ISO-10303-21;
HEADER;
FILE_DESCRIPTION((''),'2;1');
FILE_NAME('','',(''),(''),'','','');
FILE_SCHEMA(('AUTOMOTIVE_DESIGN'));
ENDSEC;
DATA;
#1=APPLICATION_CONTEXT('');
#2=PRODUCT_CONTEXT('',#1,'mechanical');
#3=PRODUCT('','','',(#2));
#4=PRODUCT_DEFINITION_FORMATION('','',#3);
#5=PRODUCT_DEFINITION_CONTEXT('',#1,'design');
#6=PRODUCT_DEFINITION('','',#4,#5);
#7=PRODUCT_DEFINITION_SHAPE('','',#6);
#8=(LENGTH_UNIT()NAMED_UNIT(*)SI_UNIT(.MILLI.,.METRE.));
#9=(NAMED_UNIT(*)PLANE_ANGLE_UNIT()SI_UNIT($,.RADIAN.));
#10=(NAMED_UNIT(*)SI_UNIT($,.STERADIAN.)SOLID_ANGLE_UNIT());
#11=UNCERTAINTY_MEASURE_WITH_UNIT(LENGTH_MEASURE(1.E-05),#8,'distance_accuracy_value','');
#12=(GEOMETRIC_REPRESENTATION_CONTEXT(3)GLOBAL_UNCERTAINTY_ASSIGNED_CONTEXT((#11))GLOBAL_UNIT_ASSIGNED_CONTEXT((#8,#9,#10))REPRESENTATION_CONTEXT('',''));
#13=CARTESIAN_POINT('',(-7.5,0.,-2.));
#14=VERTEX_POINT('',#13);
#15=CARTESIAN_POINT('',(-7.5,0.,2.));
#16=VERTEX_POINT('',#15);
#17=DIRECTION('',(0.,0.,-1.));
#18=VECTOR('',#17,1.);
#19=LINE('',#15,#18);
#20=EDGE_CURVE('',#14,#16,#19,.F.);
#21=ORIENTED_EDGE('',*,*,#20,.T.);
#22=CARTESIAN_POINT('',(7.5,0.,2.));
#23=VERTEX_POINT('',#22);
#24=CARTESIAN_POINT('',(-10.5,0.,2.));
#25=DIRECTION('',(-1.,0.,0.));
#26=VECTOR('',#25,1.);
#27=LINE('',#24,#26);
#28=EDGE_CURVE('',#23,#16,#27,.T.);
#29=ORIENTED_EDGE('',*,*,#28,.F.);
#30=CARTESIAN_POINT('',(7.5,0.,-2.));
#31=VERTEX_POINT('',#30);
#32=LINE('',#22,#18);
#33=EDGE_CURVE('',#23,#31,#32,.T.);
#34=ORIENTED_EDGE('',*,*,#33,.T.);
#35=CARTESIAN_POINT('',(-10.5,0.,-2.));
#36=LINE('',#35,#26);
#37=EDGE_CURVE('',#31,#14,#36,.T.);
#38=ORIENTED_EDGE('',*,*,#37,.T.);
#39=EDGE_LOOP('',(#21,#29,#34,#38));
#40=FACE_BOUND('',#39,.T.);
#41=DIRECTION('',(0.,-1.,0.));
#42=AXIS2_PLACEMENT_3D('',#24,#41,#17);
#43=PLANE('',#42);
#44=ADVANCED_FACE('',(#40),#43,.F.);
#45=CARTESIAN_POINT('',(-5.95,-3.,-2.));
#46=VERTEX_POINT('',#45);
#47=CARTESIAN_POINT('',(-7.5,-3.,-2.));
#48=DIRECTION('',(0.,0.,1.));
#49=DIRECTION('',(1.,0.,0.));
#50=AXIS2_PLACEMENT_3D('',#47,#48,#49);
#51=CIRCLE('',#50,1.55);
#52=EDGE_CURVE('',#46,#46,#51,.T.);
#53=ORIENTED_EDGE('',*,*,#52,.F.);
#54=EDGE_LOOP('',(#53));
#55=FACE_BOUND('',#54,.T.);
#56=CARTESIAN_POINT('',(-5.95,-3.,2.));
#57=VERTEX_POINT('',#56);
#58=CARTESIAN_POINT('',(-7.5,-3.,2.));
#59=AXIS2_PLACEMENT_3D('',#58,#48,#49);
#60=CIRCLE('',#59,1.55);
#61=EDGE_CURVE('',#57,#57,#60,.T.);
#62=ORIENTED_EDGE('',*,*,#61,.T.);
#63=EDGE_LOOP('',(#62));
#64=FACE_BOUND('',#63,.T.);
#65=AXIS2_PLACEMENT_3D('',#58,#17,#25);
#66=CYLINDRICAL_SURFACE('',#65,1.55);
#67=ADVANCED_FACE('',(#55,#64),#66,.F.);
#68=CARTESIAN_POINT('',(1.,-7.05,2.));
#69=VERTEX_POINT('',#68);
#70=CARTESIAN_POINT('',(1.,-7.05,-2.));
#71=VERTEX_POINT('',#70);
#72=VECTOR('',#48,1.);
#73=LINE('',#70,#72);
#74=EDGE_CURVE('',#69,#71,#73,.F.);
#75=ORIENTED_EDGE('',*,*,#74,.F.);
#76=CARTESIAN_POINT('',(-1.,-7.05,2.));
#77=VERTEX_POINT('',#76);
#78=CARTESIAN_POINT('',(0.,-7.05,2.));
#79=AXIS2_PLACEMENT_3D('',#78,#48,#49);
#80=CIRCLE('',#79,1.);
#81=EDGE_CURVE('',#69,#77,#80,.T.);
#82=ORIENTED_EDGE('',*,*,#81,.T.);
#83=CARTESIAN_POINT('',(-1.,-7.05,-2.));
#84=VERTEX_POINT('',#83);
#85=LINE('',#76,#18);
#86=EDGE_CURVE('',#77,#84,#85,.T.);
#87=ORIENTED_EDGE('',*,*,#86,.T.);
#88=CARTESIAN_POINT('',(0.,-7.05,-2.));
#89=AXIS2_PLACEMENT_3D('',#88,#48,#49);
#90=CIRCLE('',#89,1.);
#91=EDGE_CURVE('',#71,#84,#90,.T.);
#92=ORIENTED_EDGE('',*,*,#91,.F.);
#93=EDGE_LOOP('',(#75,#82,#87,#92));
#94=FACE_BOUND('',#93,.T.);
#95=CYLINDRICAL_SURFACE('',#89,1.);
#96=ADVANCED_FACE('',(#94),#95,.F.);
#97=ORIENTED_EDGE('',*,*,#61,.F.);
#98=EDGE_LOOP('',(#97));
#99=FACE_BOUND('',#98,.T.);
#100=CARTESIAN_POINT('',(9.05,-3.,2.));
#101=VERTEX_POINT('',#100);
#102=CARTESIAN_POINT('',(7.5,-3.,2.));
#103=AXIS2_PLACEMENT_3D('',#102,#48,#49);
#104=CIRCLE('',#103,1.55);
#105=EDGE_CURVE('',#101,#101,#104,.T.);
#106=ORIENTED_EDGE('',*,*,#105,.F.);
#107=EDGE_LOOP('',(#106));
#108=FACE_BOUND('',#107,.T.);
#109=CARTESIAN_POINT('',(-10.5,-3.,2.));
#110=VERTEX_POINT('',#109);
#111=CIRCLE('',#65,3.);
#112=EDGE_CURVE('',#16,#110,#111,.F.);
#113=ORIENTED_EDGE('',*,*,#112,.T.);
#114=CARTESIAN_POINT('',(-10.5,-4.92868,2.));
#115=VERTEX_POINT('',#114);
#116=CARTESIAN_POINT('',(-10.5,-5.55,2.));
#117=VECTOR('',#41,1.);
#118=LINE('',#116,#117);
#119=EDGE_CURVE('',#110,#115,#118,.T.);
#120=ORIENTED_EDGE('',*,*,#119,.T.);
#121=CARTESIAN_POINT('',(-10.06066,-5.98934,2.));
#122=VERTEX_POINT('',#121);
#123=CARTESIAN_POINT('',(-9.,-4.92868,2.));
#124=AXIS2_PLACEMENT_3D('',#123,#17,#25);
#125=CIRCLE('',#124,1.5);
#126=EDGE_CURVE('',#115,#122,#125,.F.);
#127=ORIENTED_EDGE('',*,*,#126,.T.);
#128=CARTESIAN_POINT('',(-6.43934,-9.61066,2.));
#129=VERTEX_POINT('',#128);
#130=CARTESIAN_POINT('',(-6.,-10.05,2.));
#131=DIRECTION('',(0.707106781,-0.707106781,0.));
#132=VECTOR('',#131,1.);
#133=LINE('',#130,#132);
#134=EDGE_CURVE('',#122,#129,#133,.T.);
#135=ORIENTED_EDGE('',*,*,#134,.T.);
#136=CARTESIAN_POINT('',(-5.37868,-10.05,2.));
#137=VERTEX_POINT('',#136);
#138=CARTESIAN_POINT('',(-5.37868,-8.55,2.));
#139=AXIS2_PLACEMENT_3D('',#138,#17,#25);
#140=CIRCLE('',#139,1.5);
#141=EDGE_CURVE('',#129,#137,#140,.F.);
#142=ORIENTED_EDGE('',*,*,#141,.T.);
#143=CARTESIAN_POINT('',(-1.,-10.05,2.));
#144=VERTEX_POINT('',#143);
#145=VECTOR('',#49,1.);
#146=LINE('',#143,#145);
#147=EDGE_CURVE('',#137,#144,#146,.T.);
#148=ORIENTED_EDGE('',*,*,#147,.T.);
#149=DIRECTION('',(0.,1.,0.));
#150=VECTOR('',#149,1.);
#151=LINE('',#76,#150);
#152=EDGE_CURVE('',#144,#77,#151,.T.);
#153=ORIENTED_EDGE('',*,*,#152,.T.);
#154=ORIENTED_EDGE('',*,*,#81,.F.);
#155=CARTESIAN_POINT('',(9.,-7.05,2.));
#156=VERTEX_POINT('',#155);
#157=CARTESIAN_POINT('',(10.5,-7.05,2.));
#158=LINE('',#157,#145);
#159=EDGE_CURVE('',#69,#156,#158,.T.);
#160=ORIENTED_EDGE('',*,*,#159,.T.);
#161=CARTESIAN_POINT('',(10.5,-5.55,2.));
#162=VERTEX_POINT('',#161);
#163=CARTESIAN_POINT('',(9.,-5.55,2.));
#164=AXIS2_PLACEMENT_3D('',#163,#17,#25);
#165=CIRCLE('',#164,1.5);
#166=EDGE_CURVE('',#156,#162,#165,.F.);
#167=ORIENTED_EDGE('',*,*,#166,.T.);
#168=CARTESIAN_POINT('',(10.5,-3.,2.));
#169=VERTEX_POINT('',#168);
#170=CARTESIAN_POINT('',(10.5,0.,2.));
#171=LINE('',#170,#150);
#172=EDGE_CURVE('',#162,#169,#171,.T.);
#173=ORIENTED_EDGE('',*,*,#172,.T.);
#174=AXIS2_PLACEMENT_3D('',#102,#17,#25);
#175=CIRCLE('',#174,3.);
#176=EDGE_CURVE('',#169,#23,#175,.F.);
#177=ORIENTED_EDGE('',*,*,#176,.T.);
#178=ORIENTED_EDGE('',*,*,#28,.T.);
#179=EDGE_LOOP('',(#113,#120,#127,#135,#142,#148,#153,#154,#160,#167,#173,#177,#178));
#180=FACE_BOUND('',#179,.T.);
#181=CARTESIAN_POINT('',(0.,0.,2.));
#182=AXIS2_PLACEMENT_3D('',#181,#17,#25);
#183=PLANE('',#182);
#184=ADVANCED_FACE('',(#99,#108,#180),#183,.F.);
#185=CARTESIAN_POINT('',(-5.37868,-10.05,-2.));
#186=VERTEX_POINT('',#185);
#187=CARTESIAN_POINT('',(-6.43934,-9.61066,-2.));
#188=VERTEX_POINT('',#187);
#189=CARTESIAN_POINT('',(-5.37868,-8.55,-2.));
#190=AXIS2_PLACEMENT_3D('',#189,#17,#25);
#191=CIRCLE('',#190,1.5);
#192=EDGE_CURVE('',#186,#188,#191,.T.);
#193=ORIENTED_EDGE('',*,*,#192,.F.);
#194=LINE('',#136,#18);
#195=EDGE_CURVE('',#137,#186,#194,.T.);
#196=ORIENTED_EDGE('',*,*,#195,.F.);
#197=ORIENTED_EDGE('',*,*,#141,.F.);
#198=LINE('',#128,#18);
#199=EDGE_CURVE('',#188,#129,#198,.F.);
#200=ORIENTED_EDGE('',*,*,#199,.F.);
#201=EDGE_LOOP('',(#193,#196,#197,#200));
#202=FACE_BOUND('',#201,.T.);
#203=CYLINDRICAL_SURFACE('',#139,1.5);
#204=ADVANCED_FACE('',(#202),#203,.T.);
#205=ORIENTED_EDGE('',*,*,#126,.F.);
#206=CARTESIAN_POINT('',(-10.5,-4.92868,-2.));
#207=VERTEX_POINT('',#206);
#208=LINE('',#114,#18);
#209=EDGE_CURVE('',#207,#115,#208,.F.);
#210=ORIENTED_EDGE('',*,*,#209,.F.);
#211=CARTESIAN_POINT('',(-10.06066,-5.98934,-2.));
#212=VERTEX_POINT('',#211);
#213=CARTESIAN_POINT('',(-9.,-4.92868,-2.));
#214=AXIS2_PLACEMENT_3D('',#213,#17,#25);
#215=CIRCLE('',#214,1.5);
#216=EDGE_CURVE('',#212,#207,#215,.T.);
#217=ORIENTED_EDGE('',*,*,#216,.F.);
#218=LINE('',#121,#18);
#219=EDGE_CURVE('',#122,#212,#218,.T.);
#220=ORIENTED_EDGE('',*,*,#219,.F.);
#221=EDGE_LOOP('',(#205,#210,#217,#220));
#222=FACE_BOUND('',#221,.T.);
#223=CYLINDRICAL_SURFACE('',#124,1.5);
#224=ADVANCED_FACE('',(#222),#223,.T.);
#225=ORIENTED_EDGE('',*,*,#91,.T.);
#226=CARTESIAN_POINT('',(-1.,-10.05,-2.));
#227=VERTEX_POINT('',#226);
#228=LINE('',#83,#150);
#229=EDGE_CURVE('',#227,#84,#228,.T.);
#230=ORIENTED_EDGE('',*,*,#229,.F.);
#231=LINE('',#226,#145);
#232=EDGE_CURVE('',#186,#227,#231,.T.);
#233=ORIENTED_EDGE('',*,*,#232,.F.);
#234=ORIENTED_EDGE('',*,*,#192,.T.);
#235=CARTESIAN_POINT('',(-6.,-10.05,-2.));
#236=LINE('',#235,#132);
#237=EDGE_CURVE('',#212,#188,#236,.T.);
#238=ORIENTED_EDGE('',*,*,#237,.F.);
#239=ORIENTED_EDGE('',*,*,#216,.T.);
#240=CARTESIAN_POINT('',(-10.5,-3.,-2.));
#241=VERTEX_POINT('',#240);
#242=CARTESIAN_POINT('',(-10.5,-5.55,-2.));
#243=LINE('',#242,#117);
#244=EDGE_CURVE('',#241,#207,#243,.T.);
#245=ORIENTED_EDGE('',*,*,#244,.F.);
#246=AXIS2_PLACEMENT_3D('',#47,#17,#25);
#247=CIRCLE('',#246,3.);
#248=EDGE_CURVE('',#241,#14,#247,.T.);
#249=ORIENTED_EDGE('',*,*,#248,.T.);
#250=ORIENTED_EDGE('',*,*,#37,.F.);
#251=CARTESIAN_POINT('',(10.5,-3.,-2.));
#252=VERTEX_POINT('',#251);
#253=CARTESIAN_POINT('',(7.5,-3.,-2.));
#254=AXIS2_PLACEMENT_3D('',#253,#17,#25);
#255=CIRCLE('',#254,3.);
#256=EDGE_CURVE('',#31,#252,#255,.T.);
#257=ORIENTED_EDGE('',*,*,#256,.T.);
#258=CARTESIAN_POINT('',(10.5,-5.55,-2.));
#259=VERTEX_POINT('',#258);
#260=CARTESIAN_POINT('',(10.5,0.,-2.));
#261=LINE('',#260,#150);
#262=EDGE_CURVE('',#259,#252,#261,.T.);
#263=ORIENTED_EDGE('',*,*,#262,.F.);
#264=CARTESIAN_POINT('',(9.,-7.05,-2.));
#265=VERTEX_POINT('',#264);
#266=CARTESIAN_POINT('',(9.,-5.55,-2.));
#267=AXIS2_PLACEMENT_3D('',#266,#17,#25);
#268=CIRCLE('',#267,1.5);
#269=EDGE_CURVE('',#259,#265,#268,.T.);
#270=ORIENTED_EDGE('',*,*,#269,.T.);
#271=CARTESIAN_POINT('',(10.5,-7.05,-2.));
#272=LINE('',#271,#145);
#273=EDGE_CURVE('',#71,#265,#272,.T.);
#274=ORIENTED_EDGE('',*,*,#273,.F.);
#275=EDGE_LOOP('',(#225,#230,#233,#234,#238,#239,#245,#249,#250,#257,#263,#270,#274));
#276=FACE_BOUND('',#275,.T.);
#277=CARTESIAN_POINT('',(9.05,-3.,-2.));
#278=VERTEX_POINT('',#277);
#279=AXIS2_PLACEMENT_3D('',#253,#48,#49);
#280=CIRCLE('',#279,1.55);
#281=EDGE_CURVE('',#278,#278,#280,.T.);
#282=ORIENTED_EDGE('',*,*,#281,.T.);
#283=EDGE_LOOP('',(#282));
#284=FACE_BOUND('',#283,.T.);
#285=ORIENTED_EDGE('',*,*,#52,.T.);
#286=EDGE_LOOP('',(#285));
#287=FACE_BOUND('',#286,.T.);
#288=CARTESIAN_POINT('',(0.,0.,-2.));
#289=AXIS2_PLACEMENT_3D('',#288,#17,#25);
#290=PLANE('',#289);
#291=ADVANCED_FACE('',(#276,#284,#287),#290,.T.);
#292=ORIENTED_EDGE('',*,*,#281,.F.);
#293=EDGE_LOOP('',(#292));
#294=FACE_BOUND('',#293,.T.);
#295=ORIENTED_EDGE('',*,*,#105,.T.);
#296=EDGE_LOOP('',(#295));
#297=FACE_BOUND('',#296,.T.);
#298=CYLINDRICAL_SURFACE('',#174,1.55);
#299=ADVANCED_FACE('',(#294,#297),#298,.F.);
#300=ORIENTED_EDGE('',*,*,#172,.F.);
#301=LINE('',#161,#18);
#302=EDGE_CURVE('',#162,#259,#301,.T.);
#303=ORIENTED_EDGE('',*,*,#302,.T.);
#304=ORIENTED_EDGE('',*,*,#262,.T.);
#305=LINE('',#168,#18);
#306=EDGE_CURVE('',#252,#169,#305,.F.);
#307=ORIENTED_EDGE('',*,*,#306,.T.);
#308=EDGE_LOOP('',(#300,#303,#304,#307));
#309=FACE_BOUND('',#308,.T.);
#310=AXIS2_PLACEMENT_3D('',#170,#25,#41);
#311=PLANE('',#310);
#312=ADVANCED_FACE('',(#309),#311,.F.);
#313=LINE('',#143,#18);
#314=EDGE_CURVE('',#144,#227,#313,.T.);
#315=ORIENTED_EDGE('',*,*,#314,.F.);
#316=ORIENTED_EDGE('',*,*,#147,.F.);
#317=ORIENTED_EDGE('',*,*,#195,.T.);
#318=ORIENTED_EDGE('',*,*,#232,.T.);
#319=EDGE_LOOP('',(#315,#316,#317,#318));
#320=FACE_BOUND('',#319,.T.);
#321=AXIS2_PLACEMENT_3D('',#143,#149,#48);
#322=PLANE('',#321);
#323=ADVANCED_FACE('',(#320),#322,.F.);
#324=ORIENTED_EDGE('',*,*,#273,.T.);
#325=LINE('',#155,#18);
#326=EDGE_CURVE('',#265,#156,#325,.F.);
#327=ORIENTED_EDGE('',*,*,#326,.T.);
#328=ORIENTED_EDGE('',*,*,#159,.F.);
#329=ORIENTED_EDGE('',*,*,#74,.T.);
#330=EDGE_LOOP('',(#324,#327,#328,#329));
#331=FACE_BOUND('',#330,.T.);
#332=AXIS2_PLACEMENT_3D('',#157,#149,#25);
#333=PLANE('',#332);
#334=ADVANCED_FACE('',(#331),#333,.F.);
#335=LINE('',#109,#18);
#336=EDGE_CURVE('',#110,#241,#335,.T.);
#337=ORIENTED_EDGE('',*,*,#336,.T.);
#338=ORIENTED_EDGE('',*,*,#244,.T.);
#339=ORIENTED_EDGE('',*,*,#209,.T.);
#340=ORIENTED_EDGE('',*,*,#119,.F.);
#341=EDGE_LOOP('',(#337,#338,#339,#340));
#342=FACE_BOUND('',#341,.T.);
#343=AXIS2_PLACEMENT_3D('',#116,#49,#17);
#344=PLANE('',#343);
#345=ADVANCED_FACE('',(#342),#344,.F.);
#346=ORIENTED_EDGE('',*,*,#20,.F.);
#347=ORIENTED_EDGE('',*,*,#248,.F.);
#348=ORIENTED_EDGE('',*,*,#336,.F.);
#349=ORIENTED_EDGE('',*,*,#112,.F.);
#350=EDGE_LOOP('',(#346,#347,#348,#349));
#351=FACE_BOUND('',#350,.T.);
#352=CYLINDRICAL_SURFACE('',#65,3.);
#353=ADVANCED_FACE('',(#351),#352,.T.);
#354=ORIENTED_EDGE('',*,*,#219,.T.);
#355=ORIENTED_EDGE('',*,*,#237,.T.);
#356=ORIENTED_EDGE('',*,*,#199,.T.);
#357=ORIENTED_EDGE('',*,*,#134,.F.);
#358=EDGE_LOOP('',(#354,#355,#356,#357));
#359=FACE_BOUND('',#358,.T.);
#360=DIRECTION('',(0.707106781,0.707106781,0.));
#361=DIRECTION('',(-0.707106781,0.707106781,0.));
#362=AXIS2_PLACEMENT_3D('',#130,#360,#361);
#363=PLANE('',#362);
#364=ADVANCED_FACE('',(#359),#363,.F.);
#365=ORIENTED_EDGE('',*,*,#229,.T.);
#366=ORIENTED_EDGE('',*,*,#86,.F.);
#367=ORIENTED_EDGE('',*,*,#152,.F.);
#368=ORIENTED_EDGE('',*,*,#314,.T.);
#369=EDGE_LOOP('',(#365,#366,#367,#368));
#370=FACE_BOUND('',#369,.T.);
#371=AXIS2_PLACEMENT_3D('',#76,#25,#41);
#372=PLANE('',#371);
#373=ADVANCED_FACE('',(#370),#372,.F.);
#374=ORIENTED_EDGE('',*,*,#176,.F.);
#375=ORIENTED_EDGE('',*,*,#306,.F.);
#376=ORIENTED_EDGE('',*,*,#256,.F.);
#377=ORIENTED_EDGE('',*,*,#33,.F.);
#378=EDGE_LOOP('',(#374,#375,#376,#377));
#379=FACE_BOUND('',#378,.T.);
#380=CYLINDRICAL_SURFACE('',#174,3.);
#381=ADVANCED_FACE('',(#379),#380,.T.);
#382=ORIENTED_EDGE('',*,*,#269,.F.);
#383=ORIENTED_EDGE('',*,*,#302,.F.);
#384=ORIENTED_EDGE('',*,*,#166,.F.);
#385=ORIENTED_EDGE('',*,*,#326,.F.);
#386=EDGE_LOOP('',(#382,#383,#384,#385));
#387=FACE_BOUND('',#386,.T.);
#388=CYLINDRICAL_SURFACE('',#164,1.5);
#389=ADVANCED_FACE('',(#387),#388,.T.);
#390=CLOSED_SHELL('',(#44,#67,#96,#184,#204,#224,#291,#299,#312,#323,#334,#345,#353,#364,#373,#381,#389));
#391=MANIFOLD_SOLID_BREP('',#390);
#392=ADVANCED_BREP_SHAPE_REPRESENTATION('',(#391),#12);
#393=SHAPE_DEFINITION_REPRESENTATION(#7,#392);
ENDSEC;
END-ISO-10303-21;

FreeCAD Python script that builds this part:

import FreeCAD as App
import Part
import Sketcher
Q = App.Units.Quantity


def edges_at(feature, points):
    """Names of the edges that pass closest to the given points."""
    edges = feature.Shape.Edges
    near = lambda p: min(range(len(edges)), key=lambda i: edges[i].distToShape(Part.Vertex(*p))[0])
    return sorted({f"Edge{near(p) + 1}" for p in points})

doc = App.newDocument("Part")
body = doc.addObject("PartDesign::Body", "Body")

# Sketch on XY plane
sketch1 = doc.addObject("Sketcher::SketchObject", "Sketch")
body.addObject(sketch1)
sketch1.AttachmentSupport = (doc.XY_Plane, [""])
sketch1.MapMode = "FlatFace"
sketch1.addGeometry(Part.LineSegment(App.Vector(10.5, 0, 0), App.Vector(-10.5, 0, 0)), False)
sketch1.addGeometry(Part.LineSegment(App.Vector(-10.5, 0, 0), App.Vector(-10.5, -5.5, 0)), False)
sketch1.addGeometry(Part.LineSegment(App.Vector(-10.5, -5.5, 0), App.Vector(-6, -10.1, 0)), False)
sketch1.addGeometry(Part.LineSegment(App.Vector(-6, -10.1, 0), App.Vector(-1, -10.1, 0)), False)
sketch1.addGeometry(Part.LineSegment(App.Vector(-1, -10.1, 0), App.Vector(-1, -7, 0)), False)
sketch1.addGeometry(Part.LineSegment(App.Vector(-1, -7, 0), App.Vector(10.5, -7, 0)), False)
sketch1.addGeometry(Part.LineSegment(App.Vector(10.5, -7, 0), App.Vector(10.5, 0, 0)), False)
sketch1.addGeometry(Part.Circle(App.Vector(7.5, -3, 0), App.Vector(0, 0, 1), 1.6), False)
sketch1.addGeometry(Part.Circle(App.Vector(-7.5, -3, 0), App.Vector(0, 0, 1), 1.6), False)
sketch1.addConstraint(Sketcher.Constraint("Coincident", 0, 2, 1, 1))
sketch1.addConstraint(Sketcher.Constraint("Coincident", 1, 2, 2, 1))
sketch1.addConstraint(Sketcher.Constraint("Coincident", 2, 2, 3, 1))
sketch1.addConstraint(Sketcher.Constraint("Coincident", 3, 2, 4, 1))
sketch1.addConstraint(Sketcher.Constraint("Coincident", 4, 2, 5, 1))
sketch1.addConstraint(Sketcher.Constraint("Coincident", 5, 2, 6, 1))
sketch1.addConstraint(Sketcher.Constraint("Coincident", 6, 2, 0, 1))
sketch1.addConstraint(Sketcher.Constraint("Horizontal", 0))
sketch1.addConstraint(Sketcher.Constraint("Vertical", 1))
sketch1.addConstraint(Sketcher.Constraint("Horizontal", 3))
sketch1.addConstraint(Sketcher.Constraint("Vertical", 4))
sketch1.addConstraint(Sketcher.Constraint("Horizontal", 5))
sketch1.addConstraint(Sketcher.Constraint("Vertical", 6))
sketch1.addConstraint(Sketcher.Constraint("Equal", 7, 8))
sketch1.addConstraint(Sketcher.Constraint("Symmetric", 0, 2, 6, 2, -1, 1))
sketch1.addConstraint(Sketcher.Constraint("Symmetric", 7, 3, 8, 3, -2))
sketch1.addConstraint(Sketcher.Constraint("Diameter", 7, Q("3.1 mm")))
sketch1.addConstraint(Sketcher.Constraint("DistanceX", 0, 2, 0, 1, Q("21 mm")))
sketch1.addConstraint(Sketcher.Constraint("DistanceX", 3, 1, 3, 2, Q("5 mm")))
sketch1.addConstraint(Sketcher.Constraint("DistanceY", 4, 1, 4, 2, Q("3 mm")))
sketch1.addConstraint(Sketcher.Constraint("Angle", 2, Q("-45 deg")))
sketch1.addConstraint(Sketcher.Constraint("DistanceX", 5, 1, 5, 2, Q("11.5 mm")))
sketch1.addConstraint(Sketcher.Constraint("DistanceY", 7, 3, -1, 1, Q("3 mm")))
sketch1.addConstraint(Sketcher.Constraint("DistanceX", 8, 3, 7, 3, Q("15 mm")))
sketch1.addConstraint(Sketcher.Constraint("DistanceY", 1, 2, 1, 1, Q("5.55 mm")))
pad1 = doc.addObject("PartDesign::Pad", "Pad")
body.addObject(pad1)
pad1.Profile = sketch1
pad1.Length = 4
pad1.Midplane = True
doc.recompute()

fillet = doc.addObject("PartDesign::Fillet", "Fillet")
body.addObject(fillet)
fillet.Base = (pad1, edges_at(pad1, [(-10.5, 0, 0), (10.5, 0, 0)]))
fillet.Radius = 3
doc.recompute()

fillet2 = doc.addObject("PartDesign::Fillet", "Fillet001")
body.addObject(fillet2)
fillet2.Base = (fillet, edges_at(fillet, [(10.5, -7.05, 0), (-6, -10.05, 0), (-10.5, -5.55, 0)]))
fillet2.Radius = 1.5

# Sketch on XY plane
sketch2 = doc.addObject("Sketcher::SketchObject", "Sketch001")
body.addObject(sketch2)
sketch2.AttachmentSupport = (doc.XY_Plane, [""])
sketch2.MapMode = "FlatFace"
sketch2.AttachmentOffset = App.Placement(App.Vector(0, 0, 2), App.Rotation())
sketch2.addGeometry(Part.Circle(App.Vector(0, -7, 0), App.Vector(0, 0, 1), 1), False)
sketch2.addConstraint(Sketcher.Constraint("PointOnObject", 0, 3, -2))
sketch2.addConstraint(Sketcher.Constraint("Diameter", 0, Q("2 mm")))
sketch2.addConstraint(Sketcher.Constraint("DistanceY", 0, 3, -1, 1, Q("7.05 mm")))
pocket1 = doc.addObject("PartDesign::Pocket", "Pocket")
body.addObject(pocket1)
pocket1.Profile = sketch2
pocket1.Type = "ThroughAll"

doc.recompute()
